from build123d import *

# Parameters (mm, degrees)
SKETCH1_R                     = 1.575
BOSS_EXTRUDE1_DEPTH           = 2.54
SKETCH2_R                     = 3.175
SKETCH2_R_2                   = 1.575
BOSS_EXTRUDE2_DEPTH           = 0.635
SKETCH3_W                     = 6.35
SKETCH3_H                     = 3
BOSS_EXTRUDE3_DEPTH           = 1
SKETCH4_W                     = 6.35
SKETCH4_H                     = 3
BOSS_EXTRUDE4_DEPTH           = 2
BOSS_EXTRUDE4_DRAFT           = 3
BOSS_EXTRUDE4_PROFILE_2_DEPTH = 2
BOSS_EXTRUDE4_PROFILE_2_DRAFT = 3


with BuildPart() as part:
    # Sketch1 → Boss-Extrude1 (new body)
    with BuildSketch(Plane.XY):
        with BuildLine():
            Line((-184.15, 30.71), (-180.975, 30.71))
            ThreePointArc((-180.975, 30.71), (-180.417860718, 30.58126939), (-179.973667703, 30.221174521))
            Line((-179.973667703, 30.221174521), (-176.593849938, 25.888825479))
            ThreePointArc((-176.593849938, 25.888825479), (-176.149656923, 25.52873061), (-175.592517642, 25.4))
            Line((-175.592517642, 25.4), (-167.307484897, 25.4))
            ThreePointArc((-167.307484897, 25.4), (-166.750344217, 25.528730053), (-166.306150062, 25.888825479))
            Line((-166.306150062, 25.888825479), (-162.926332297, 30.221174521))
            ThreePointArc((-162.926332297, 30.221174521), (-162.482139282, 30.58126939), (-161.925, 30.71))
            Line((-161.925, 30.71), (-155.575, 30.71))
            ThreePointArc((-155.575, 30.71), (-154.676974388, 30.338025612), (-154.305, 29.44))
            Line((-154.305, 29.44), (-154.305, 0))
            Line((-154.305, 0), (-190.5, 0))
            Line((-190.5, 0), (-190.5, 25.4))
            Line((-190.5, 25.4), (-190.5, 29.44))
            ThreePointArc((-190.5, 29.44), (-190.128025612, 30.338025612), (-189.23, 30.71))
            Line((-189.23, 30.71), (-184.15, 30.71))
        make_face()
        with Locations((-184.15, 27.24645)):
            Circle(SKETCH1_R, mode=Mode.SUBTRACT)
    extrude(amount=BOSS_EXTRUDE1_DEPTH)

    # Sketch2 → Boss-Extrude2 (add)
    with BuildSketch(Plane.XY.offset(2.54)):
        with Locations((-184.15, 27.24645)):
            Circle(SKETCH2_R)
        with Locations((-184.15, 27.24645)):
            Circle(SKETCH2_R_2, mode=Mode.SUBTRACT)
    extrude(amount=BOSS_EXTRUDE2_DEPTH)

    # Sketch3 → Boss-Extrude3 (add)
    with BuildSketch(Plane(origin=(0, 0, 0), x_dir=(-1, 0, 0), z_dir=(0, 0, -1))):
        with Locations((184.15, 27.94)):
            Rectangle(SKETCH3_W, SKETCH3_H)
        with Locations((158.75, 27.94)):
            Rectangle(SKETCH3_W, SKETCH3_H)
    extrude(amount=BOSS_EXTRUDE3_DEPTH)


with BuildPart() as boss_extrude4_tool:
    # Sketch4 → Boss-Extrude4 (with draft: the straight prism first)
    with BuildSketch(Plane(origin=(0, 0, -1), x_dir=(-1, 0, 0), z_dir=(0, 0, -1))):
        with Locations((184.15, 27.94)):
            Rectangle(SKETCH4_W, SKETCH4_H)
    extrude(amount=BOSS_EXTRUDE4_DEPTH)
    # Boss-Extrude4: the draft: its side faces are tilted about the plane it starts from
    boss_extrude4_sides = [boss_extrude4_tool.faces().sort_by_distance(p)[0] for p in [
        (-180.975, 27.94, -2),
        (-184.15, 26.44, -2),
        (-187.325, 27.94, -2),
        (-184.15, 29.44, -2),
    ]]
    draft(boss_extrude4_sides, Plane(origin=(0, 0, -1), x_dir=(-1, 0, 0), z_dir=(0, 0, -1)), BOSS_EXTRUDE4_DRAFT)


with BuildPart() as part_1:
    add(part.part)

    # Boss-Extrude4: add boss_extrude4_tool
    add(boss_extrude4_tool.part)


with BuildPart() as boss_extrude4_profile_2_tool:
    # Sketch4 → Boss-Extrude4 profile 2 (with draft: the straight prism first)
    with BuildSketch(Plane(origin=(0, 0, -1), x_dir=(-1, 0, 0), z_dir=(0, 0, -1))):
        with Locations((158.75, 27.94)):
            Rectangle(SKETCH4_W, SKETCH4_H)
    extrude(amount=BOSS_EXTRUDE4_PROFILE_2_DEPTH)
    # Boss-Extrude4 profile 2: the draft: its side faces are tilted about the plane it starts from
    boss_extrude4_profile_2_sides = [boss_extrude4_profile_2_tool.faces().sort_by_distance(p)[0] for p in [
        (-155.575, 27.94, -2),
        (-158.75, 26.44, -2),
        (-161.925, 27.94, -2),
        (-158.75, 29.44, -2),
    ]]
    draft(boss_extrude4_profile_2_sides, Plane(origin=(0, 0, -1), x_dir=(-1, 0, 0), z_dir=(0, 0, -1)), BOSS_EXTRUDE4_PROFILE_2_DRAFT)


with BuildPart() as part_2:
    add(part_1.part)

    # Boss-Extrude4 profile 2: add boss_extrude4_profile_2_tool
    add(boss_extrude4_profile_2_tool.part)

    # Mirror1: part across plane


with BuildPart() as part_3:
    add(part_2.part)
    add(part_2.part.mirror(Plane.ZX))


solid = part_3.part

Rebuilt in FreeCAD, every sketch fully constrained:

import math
import FreeCAD as App
import Part
import Sketcher
from FreeCAD import Vector
Q = App.Units.Quantity


def faces_at(feature, points):
    """Names of the faces that lie closest to the given points."""
    faces = feature.Shape.Faces
    near = lambda p: min(range(len(faces)), key=lambda i: faces[i].distToShape(Part.Vertex(*p))[0])
    return sorted({f"Face{near(p) + 1}" for p in points})


def add_polygon(sketch, points):
    """Adds a closed chain of lines whose ends are joined by coincident constraints."""
    first, n = sketch.GeometryCount, len(points)
    for a, b in zip(points, points[1:] + points[:1]):
        sketch.addGeometry(Part.LineSegment(App.Vector(*a, 0), App.Vector(*b, 0)), False)
    for i in range(n):
        sketch.addConstraint(Sketcher.Constraint("Coincident", first + i, 2, first + (i + 1) % n, 1))

doc = App.newDocument("Part")
params = doc.addObject("Spreadsheet::Sheet", "Params")
for row, (alias, value) in enumerate([
    ("sketch1_radius", "0.05 in"),
    ("sketch1_width", "0.25 in"),
    ("sketch1_width2", "0.325 in"),
    ("pad1_length", "0.1 in"),
    ("sketch2_diameter", "0.25 in"),
    ("pad2_length", "0.025 in"),
    ("sketch3_width", "0.25 in"),
    ("pad3_length", "1 mm"),
    ("sketch4_width", "0.25 in"),
    ("pad4_length", "2 mm"),
    ("draft_angle", "3 deg"),
    ("sketch5_width", "0.25 in"),
    ("pad5_length", "2 mm"),
    ("draft2_angle", "3 deg"),
], start=1):
    params.set(f"A{row}", alias)
    params.set(f"B{row}", "=" + value)
    params.setAlias(f"B{row}", alias)

body = doc.addObject("PartDesign::Body", "Body")

# Sketch on XY plane
sketch1 = body.newObject("Sketcher::SketchObject", "Sketch")
sketch1.AttachmentSupport = (doc.getObject("XY_Plane"), [""])
sketch1.MapMode = "FlatFace"
sketch1.addGeometry([
    Part.ArcOfCircle(Part.Circle(Vector(-181, 29.4, 0), Vector(0, 0, 1), 1.3), math.radians(38), math.radians(90)),  # 0
    Part.LineSegment(Vector(-181, 30.7, 0), Vector(-189.2, 30.7, 0)),  # 1
    Part.ArcOfCircle(Part.Circle(Vector(-189.2, 29.4, 0), Vector(0, 0, 1), 1.3), math.radians(90), math.radians(180)),  # 2
    Part.LineSegment(Vector(-190.5, 29.4, 0), Vector(-190.5, 0, 0)),  # 3
    Part.LineSegment(Vector(-190.5, 0, 0), Vector(-154.3, 0, 0)),  # 4
    Part.LineSegment(Vector(-154.3, 0, 0), Vector(-154.3, 29.4, 0)),  # 5
    Part.ArcOfCircle(Part.Circle(Vector(-155.6, 29.4, 0), Vector(0, 0, 1), 1.3), math.radians(0), math.radians(90)),  # 6
    Part.LineSegment(Vector(-155.6, 30.7, 0), Vector(-161.9, 30.7, 0)),  # 7
    Part.ArcOfCircle(Part.Circle(Vector(-161.9, 29.4, 0), Vector(0, 0, 1), 1.3), math.radians(90), math.radians(142)),  # 8
    Part.LineSegment(Vector(-162.9, 30.2, 0), Vector(-166.3, 25.9, 0)),  # 9
    Part.ArcOfCircle(Part.Circle(Vector(-167.3, 26.7, 0), Vector(0, 0, 1), 1.3), math.radians(-90), math.radians(-38)),  # 10
    Part.LineSegment(Vector(-167.3, 25.4, 0), Vector(-175.6, 25.4, 0)),  # 11
    Part.ArcOfCircle(Part.Circle(Vector(-175.6, 26.7, 0), Vector(0, 0, 1), 1.3), math.radians(-142), math.radians(-90)),  # 12
    Part.LineSegment(Vector(-176.6, 25.9, 0), Vector(-180, 30.2, 0)),  # 13
    Part.Circle(Vector(-184.2, 27.2, 0), Vector(0, 0, 1), 1.6),  # 14
], False)
sketch1.addConstraint([
    Sketcher.Constraint("Tangent", 0, 2, 1, 1),
    Sketcher.Constraint("Tangent", 1, 2, 2, 1),
    Sketcher.Constraint("Tangent", 2, 2, 3, 1),
    Sketcher.Constraint("Coincident", 3, 2, 4, 1),
    Sketcher.Constraint("Coincident", 4, 2, 5, 1),
    Sketcher.Constraint("Tangent", 5, 2, 6, 1),
    Sketcher.Constraint("Tangent", 6, 2, 7, 1),
    Sketcher.Constraint("Tangent", 7, 2, 8, 1),
    Sketcher.Constraint("Tangent", 8, 2, 9, 1),
    Sketcher.Constraint("Tangent", 9, 2, 10, 2),
    Sketcher.Constraint("Tangent", 10, 1, 11, 1),
    Sketcher.Constraint("Tangent", 11, 2, 12, 2),
    Sketcher.Constraint("Tangent", 12, 1, 13, 1),
    Sketcher.Constraint("Tangent", 13, 2, 0, 1),
    Sketcher.Constraint("Horizontal", 1),
    Sketcher.Constraint("Vertical", 3),
    Sketcher.Constraint("Horizontal", 4),
    Sketcher.Constraint("Vertical", 5),
    Sketcher.Constraint("Horizontal", 7),
    Sketcher.Constraint("Horizontal", 11),
    Sketcher.Constraint("Equal", 0, 2),
    Sketcher.Constraint("Equal", 2, 6),
    Sketcher.Constraint("Equal", 6, 8),
    Sketcher.Constraint("Equal", 8, 10),
    Sketcher.Constraint("Equal", 10, 12),
    Sketcher.Constraint("PointOnObject", 3, 2, -1),
    Sketcher.Constraint("Horizontal", 2, 3, 6, 3),
    Sketcher.Constraint("Horizontal", 9, 2, 12, 1),
    Sketcher.Constraint("Radius", 0, Q("0.05 in")),
    Sketcher.Constraint("DistanceY", -1, 1, 10, 1, Q("1 in")),
    Sketcher.Constraint("DistanceX", 0, 3, 6, 3, Q("1 in")),
    Sketcher.Constraint("DistanceX", 7, 2, 7, 1, Q("0.25 in")),
    Sketcher.Constraint("DistanceX", 2, 2, -1, 1, Q("7.5 in")),
    Sketcher.Constraint("DistanceX", 2, 3, 14, 3, Q("0.2 in")),
    Sketcher.Constraint("Diameter", 14, Q("3.15 mm")),
    Sketcher.Constraint("DistanceX", 1, 2, 1, 1, Q("0.325 in")),
    Sketcher.Constraint("DistanceY", 3, 2, 3, 1, Q("29.44 mm")),
    Sketcher.Constraint("DistanceX", 11, 2, 11, 1, Q("8.285033 mm")),
    Sketcher.Constraint("DistanceY", -1, 1, 14, 3, Q("27.24645 mm")),
])
sketch1.setExpression("Constraints[28]", "Params.sketch1_radius")
sketch1.setExpression("Constraints[31]", "Params.sketch1_width")
sketch1.setExpression("Constraints[35]", "Params.sketch1_width2")
pad1 = body.newObject("PartDesign::Pad", "Pad")
pad1.Profile = sketch1
pad1.setExpression("Length", "Params.pad1_length")

# Sketch on XY plane
sketch2 = body.newObject("Sketcher::SketchObject", "Sketch001")
sketch2.AttachmentSupport = (doc.getObject("XY_Plane"), [""])
sketch2.MapMode = "FlatFace"
sketch2.AttachmentOffset = App.Placement(Vector(0, 0, 0.1 * 25.4), App.Rotation())
sketch2.addGeometry([
    Part.Circle(Vector(-184.2, 27.2, 0), Vector(0, 0, 1), 3.2),
    Part.Circle(Vector(-184.2, 27.2, 0), Vector(0, 0, 1), 1.6),
], False)
sketch2.addConstraint([
    Sketcher.Constraint("Coincident", 1, 3, 0, 3),
    Sketcher.Constraint("Diameter", 0, Q("0.25 in")),
    Sketcher.Constraint("Diameter", 1, Q("3.15 mm")),
    Sketcher.Constraint("DistanceX", 0, 3, -1, 1, Q("7.25 in")),
    Sketcher.Constraint("DistanceY", -1, 1, 0, 3, Q("27.24645 mm")),
])
sketch2.setExpression("Constraints[1]", "Params.sketch2_diameter")
pad2 = body.newObject("PartDesign::Pad", "Pad001")
pad2.Profile = sketch2
pad2.setExpression("Length", "Params.pad2_length")

# Sketch on XY plane
sketch3 = body.newObject("Sketcher::SketchObject", "Sketch002")
sketch3.AttachmentSupport = (doc.getObject("XY_Plane"), [""])
sketch3.MapMode = "FlatFace"
add_polygon(sketch3, [(-181, 29.4), (-181, 26.4), (-187.3, 26.4), (-187.3, 29.4)])  # lines 0-3
add_polygon(sketch3, [(-155.6, 29.4), (-155.6, 26.4), (-161.9, 26.4), (-161.9, 29.4)])  # lines 4-7
sketch3.addConstraint([
    Sketcher.Constraint("Vertical", 0),
    Sketcher.Constraint("Horizontal", 1),
    Sketcher.Constraint("Vertical", 2),
    Sketcher.Constraint("Horizontal", 3),
    Sketcher.Constraint("Vertical", 4),
    Sketcher.Constraint("Horizontal", 5),
    Sketcher.Constraint("Vertical", 6),
    Sketcher.Constraint("Horizontal", 7),
    Sketcher.Constraint("Horizontal", 1, 2, 4, 2),
    Sketcher.Constraint("Horizontal", 3, 2, 6, 2),
    Sketcher.Constraint("Equal", 3, 5),
    Sketcher.Constraint("DistanceX", 0, 2, 4, 2, Q("1 in")),
    Sketcher.Constraint("DistanceX", 1, 2, 1, 1, Q("0.25 in")),
    Sketcher.Constraint("DistanceX", 0, 2, -1, 1, Q("7.125 in")),
    Sketcher.Constraint("DistanceY", 0, 2, 0, 1, Q("3 mm")),
    Sketcher.Constraint("DistanceY", -1, 1, 0, 2, Q("26.44 mm")),
])
sketch3.setExpression("Constraints[20]", "Params.sketch3_width")
pad3 = body.newObject("PartDesign::Pad", "Pad002")
pad3.Profile = sketch3
pad3.setExpression("Length", "Params.pad3_length")
pad3.Reversed = True
body2 = doc.addObject("PartDesign::Body", "Body001")

# Sketch on XY plane
sketch4 = body2.newObject("Sketcher::SketchObject", "Sketch003")
sketch4.AttachmentSupport = (doc.getObject("XY_Plane001"), [""])
sketch4.MapMode = "FlatFace"
sketch4.AttachmentOffset = App.Placement(Vector(0, 0, -1), App.Rotation())
add_polygon(sketch4, [(-181, 29.4), (-181, 26.4), (-187.3, 26.4), (-187.3, 29.4)])  # lines 0-3
sketch4.addConstraint([
    Sketcher.Constraint("Vertical", 0),
    Sketcher.Constraint("Horizontal", 1),
    Sketcher.Constraint("Vertical", 2),
    Sketcher.Constraint("Horizontal", 3),
    Sketcher.Constraint("DistanceX", 1, 2, 1, 1, Q("0.25 in")),
    Sketcher.Constraint("DistanceX", 0, 2, -1, 1, Q("7.125 in")),
    Sketcher.Constraint("DistanceY", 0, 2, 0, 1, Q("3 mm")),
    Sketcher.Constraint("DistanceY", -1, 1, 0, 2, Q("26.44 mm")),
])
sketch4.setExpression("Constraints[8]", "Params.sketch4_width")
pad4 = body2.newObject("PartDesign::Pad", "Pad003")
pad4.Profile = sketch4
pad4.setExpression("Length", "Params.pad4_length")
pad4.Reversed = True
doc.recompute()

datumplane = body2.newObject("PartDesign::Plane", "DatumPlane")
datumplane.AttachmentSupport = (doc.getObject("XY_Plane001"), [""])
datumplane.MapMode = "FlatFace"
datumplane.AttachmentOffset = App.Placement(Vector(0, 0, -1), App.Rotation())
draft = body2.newObject("PartDesign::Draft", "Draft")
draft.Base = (pad4, faces_at(pad4, [
    (-180.975, 27.94, -2),
    (-184.15, 26.44, -2),
    (-187.325, 27.94, -2),
    (-184.15, 29.44, -2),
]))
draft.NeutralPlane = (datumplane, [""])
draft.setExpression("Angle", "Params.draft_angle")
draft.Reversed = True
doc.recompute()

boolean = body.newObject("PartDesign::Boolean", "Boolean")
boolean.Type = "Fuse"
boolean.addObjects([body2])
body3 = doc.addObject("PartDesign::Body", "Body002")

# Sketch on XY plane
sketch5 = body3.newObject("Sketcher::SketchObject", "Sketch004")
sketch5.AttachmentSupport = (doc.getObject("XY_Plane002"), [""])
sketch5.MapMode = "FlatFace"
sketch5.AttachmentOffset = App.Placement(Vector(0, 0, -1), App.Rotation())
add_polygon(sketch5, [(-155.6, 29.4), (-155.6, 26.4), (-161.9, 26.4), (-161.9, 29.4)])  # lines 0-3
sketch5.addConstraint([
    Sketcher.Constraint("Vertical", 0),
    Sketcher.Constraint("Horizontal", 1),
    Sketcher.Constraint("Vertical", 2),
    Sketcher.Constraint("Horizontal", 3),
    Sketcher.Constraint("DistanceX", 1, 2, 1, 1, Q("0.25 in")),
    Sketcher.Constraint("DistanceX", 0, 2, -1, 1, Q("6.125 in")),
    Sketcher.Constraint("DistanceY", 0, 2, 0, 1, Q("3 mm")),
    Sketcher.Constraint("DistanceY", -1, 1, 0, 2, Q("26.44 mm")),
])
sketch5.setExpression("Constraints[8]", "Params.sketch5_width")
pad5 = body3.newObject("PartDesign::Pad", "Pad004")
pad5.Profile = sketch5
pad5.setExpression("Length", "Params.pad5_length")
pad5.Reversed = True
doc.recompute()

datumplane2 = body3.newObject("PartDesign::Plane", "DatumPlane001")
datumplane2.AttachmentSupport = (doc.getObject("XY_Plane002"), [""])
datumplane2.MapMode = "FlatFace"
datumplane2.AttachmentOffset = App.Placement(Vector(0, 0, -1), App.Rotation())
draft2 = body3.newObject("PartDesign::Draft", "Draft001")
draft2.Base = (pad5, faces_at(pad5, [
    (-155.575, 27.94, -2),
    (-158.75, 26.44, -2),
    (-161.925, 27.94, -2),
    (-158.75, 29.44, -2),
]))
draft2.NeutralPlane = (datumplane2, [""])
draft2.setExpression("Angle", "Params.draft2_angle")
draft2.Reversed = True
doc.recompute()

boolean2 = body.newObject("PartDesign::Boolean", "Boolean001")
boolean2.Type = "Fuse"
boolean2.addObjects([body3])
body4 = doc.addObject("PartDesign::Body", "Body003")
doc.recompute()

body4.BaseFeature = body
doc.recompute()

mirroring = doc.addObject("Part::Mirroring", "Mirroring")
mirroring.Source = body
mirroring.Base = Vector(0, 0, 0)
mirroring.Normal = Vector(0, 1, 0)
body5 = doc.addObject("PartDesign::Body", "Body004")
body5.BaseFeature = mirroring
boolean3 = body4.newObject("PartDesign::Boolean", "Boolean002")
boolean3.Type = "Fuse"
boolean3.addObjects([body5])
doc.recompute()
mirroring.Visibility = False

doc.recompute()
